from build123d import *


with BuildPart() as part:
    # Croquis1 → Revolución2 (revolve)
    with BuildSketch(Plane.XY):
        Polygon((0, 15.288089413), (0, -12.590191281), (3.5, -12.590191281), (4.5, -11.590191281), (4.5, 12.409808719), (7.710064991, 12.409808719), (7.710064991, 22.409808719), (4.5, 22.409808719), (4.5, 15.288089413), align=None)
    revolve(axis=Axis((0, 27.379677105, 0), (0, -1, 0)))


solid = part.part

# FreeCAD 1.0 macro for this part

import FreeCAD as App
import Part
import Sketcher
from FreeCAD import Vector
Q = App.Units.Quantity

doc = App.newDocument("Part")
body = doc.addObject("PartDesign::Body", "Body")

# Sketch on XY plane
sketch1 = body.newObject("Sketcher::SketchObject", "Sketch")
sketch1.AttachmentSupport = (doc.getObject("XY_Plane"), [""])
sketch1.MapMode = "FlatFace"
sketch1.addGeometry([
    Part.LineSegment(Vector(0, 15.3, 0), Vector(0, -12.6, 0)),  # 0
    Part.LineSegment(Vector(0, -12.6, 0), Vector(3.5, -12.6, 0)),  # 1
    Part.LineSegment(Vector(3.5, -12.6, 0), Vector(4.5, -11.6, 0)),  # 2
    Part.LineSegment(Vector(4.5, -11.6, 0), Vector(4.5, 12.4, 0)),  # 3
    Part.LineSegment(Vector(4.5, 12.4, 0), Vector(7.7, 12.4, 0)),  # 4
    Part.LineSegment(Vector(7.7, 12.4, 0), Vector(7.7, 22.4, 0)),  # 5
    Part.LineSegment(Vector(7.7, 22.4, 0), Vector(4.5, 22.4, 0)),  # 6
    Part.LineSegment(Vector(4.5, 22.4, 0), Vector(4.5, 15.3, 0)),  # 7
    Part.LineSegment(Vector(4.5, 15.3, 0), Vector(0, 15.3, 0)),  # 8
], False)
sketch1.addConstraint([
    Sketcher.Constraint("Coincident", 0, 2, 1, 1),
    Sketcher.Constraint("Coincident", 1, 2, 2, 1),
    Sketcher.Constraint("Coincident", 2, 2, 3, 1),
    Sketcher.Constraint("Coincident", 3, 2, 4, 1),
    Sketcher.Constraint("Coincident", 4, 2, 5, 1),
    Sketcher.Constraint("Coincident", 5, 2, 6, 1),
    Sketcher.Constraint("Coincident", 6, 2, 7, 1),
    Sketcher.Constraint("Coincident", 7, 2, 8, 1),
    Sketcher.Constraint("Coincident", 8, 2, 0, 1),
    Sketcher.Constraint("Vertical", 0),
    Sketcher.Constraint("Horizontal", 1),
    Sketcher.Constraint("Vertical", 3),
    Sketcher.Constraint("Horizontal", 4),
    Sketcher.Constraint("Vertical", 5),
    Sketcher.Constraint("Horizontal", 6),
    Sketcher.Constraint("Vertical", 7),
    Sketcher.Constraint("Horizontal", 8),
    Sketcher.Constraint("PointOnObject", 0, 2, -2),
    Sketcher.Constraint("Vertical", 3, 2, 6, 2),
    Sketcher.Constraint("DistanceY", 3, 1, 3, 2, Q("24 mm")),
    Sketcher.Constraint("DistanceY", 5, 1, 5, 2, Q("10 mm")),
    Sketcher.Constraint("Angle", 2, Q("45 deg")),
    Sketcher.Constraint("DistanceX", 1, 1, 1, 2, Q("3.5 mm")),
    Sketcher.Constraint("DistanceX", 8, 2, 8, 1, Q("4.5 mm")),
    Sketcher.Constraint("DistanceY", 0, 2, 0, 1, Q("27.878281 mm")),
    Sketcher.Constraint("DistanceX", 4, 1, 4, 2, Q("3.210065 mm")),
    Sketcher.Constraint("DistanceY", 0, 2, -1, 1, Q("12.590191 mm")),
])
revolution = body.newObject("PartDesign::Revolution", "Revolution")
revolution.Profile = sketch1
revolution.ReferenceAxis = (sketch1, ["V_Axis"])
revolution.Angle = 360

doc.recompute()
